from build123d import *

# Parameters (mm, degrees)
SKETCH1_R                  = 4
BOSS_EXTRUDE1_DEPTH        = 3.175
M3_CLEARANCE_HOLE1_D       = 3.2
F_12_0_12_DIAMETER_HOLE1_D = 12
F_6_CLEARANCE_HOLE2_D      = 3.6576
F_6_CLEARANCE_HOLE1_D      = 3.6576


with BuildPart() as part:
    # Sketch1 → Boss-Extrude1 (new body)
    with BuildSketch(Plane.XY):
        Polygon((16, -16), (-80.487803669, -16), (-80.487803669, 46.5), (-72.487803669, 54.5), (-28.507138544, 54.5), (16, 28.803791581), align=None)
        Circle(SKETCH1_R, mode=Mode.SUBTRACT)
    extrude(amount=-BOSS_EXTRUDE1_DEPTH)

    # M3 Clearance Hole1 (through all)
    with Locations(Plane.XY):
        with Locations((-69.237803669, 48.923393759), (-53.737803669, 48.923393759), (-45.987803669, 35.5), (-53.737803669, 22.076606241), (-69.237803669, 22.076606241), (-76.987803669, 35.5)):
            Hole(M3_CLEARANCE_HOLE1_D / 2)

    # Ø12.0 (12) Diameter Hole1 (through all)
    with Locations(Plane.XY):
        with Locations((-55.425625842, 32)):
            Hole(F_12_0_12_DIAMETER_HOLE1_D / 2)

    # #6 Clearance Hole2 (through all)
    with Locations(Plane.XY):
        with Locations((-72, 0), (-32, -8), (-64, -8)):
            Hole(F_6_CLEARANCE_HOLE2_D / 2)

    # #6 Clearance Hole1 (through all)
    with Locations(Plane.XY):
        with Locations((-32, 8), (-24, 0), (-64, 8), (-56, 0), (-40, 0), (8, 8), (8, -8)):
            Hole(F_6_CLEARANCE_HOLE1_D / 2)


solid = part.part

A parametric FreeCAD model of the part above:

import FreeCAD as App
import Part
import Sketcher
from FreeCAD import Vector
Q = App.Units.Quantity

doc = App.newDocument("Part")
body = doc.addObject("PartDesign::Body", "Body")

# Sketch on XY plane
sketch1 = body.newObject("Sketcher::SketchObject", "Sketch")
sketch1.AttachmentSupport = (doc.getObject("XY_Plane"), [""])
sketch1.MapMode = "FlatFace"
sketch1.addGeometry(Part.LineSegment(Vector(-80.5, -16, 0), Vector(16, -16, 0)), False)
sketch1.addGeometry(Part.LineSegment(Vector(16, -16, 0), Vector(16, 28.8, 0)), False)
sketch1.addGeometry(Part.LineSegment(Vector(16, 28.8, 0), Vector(-28.5, 54.5, 0)), False)
sketch1.addGeometry(Part.LineSegment(Vector(-28.5, 54.5, 0), Vector(-72.5, 54.5, 0)), False)
sketch1.addGeometry(Part.LineSegment(Vector(-72.5, 54.5, 0), Vector(-80.5, 46.5, 0)), False)
sketch1.addGeometry(Part.LineSegment(Vector(-80.5, 46.5, 0), Vector(-80.5, -16, 0)), False)
sketch1.addGeometry(Part.Circle(Vector(0, 0, 0), Vector(0, 0, 1), 4), False)
sketch1.addConstraint(Sketcher.Constraint("Coincident", 0, 2, 1, 1))
sketch1.addConstraint(Sketcher.Constraint("Coincident", 1, 2, 2, 1))
sketch1.addConstraint(Sketcher.Constraint("Coincident", 2, 2, 3, 1))
sketch1.addConstraint(Sketcher.Constraint("Coincident", 3, 2, 4, 1))
sketch1.addConstraint(Sketcher.Constraint("Coincident", 4, 2, 5, 1))
sketch1.addConstraint(Sketcher.Constraint("Coincident", 5, 2, 0, 1))
sketch1.addConstraint(Sketcher.Constraint("Horizontal", 0))
sketch1.addConstraint(Sketcher.Constraint("Vertical", 1))
sketch1.addConstraint(Sketcher.Constraint("Horizontal", 3))
sketch1.addConstraint(Sketcher.Constraint("Vertical", 5))
sketch1.addConstraint(Sketcher.Constraint("Coincident", 6, 3, -1, 1))
sketch1.addConstraint(Sketcher.Constraint("Diameter", 6, Q("8 mm")))
sketch1.addConstraint(Sketcher.Constraint("Angle", 2, Q("150 deg")))
sketch1.addConstraint(Sketcher.Constraint("Angle", 4, Q("-135 deg")))
sketch1.addConstraint(Sketcher.Constraint("DistanceY", 5, 2, 5, 1, Q("62.5 mm")))
sketch1.addConstraint(Sketcher.Constraint("DistanceX", -1, 1, 0, 2, Q("16 mm")))
sketch1.addConstraint(Sketcher.Constraint("DistanceY", 0, 2, -1, 1, Q("16 mm")))
sketch1.addConstraint(Sketcher.Constraint("DistanceX", 4, 2, 3, 2, Q("8 mm")))
sketch1.addConstraint(Sketcher.Constraint("DistanceY", 1, 1, 1, 2, Q("44.803792 mm")))
sketch1.addConstraint(Sketcher.Constraint("DistanceX", 0, 1, 0, 2, Q("96.487804 mm")))
pad1 = body.newObject("PartDesign::Pad", "Pad")
pad1.Profile = sketch1
pad1.Length = 3.175
pad1.Reversed = True

# Sketch on XY plane
sketch2 = body.newObject("Sketcher::SketchObject", "Sketch001")
sketch2.AttachmentSupport = (doc.getObject("XY_Plane"), [""])
sketch2.MapMode = "FlatFace"
sketch2.addGeometry(Part.Circle(Vector(-69.2, 48.9, 0), Vector(0, 0, 1), 1.6), False)
sketch2.addGeometry(Part.Circle(Vector(-53.7, 48.9, 0), Vector(0, 0, 1), 1.6), False)
sketch2.addGeometry(Part.Circle(Vector(-46, 35.5, 0), Vector(0, 0, 1), 1.6), False)
sketch2.addGeometry(Part.Circle(Vector(-53.7, 22.1, 0), Vector(0, 0, 1), 1.6), False)
sketch2.addGeometry(Part.Circle(Vector(-69.2, 22.1, 0), Vector(0, 0, 1), 1.6), False)
sketch2.addGeometry(Part.Circle(Vector(-77, 35.5, 0), Vector(0, 0, 1), 1.6), False)
sketch2.addConstraint(Sketcher.Constraint("Equal", 0, 1))
sketch2.addConstraint(Sketcher.Constraint("Equal", 1, 2))
sketch2.addConstraint(Sketcher.Constraint("Equal", 2, 3))
sketch2.addConstraint(Sketcher.Constraint("Equal", 3, 4))
sketch2.addConstraint(Sketcher.Constraint("Equal", 4, 5))
sketch2.addConstraint(Sketcher.Constraint("Horizontal", 0, 3, 1, 3))
sketch2.addConstraint(Sketcher.Constraint("Horizontal", 3, 3, 4, 3))
sketch2.addConstraint(Sketcher.Constraint("Horizontal", 2, 3, 5, 3))
sketch2.addConstraint(Sketcher.Constraint("Vertical", 1, 3, 3, 3))
sketch2.addConstraint(Sketcher.Constraint("Vertical", 0, 3, 4, 3))
sketch2.addConstraint(Sketcher.Constraint("Diameter", 0, Q("3.2 mm")))
sketch2.addConstraint(Sketcher.Constraint("DistanceX", 5, 3, 2, 3, Q("31 mm")))
sketch2.addConstraint(Sketcher.Constraint("DistanceY", -1, 1, 2, 3, Q("35.5 mm")))
sketch2.addConstraint(Sketcher.Constraint("DistanceX", 0, 3, 1, 3, Q("15.5 mm")))
sketch2.addConstraint(Sketcher.Constraint("DistanceX", 1, 3, 2, 3, Q("7.75 mm")))
sketch2.addConstraint(Sketcher.Constraint("DistanceX", 0, 3, -1, 1, Q("69.237804 mm")))
sketch2.addConstraint(Sketcher.Constraint("DistanceY", -1, 1, 0, 3, Q("48.923394 mm")))
sketch2.addConstraint(Sketcher.Constraint("DistanceY", -1, 1, 3, 3, Q("22.076606 mm")))
doc.recompute()
hole = body.newObject("PartDesign::Hole", "Hole")
hole.Profile = sketch2
hole.ThreadType = "None"
hole.Diameter = 3.2
hole.DepthType = "ThroughAll"

# Sketch on XY plane
sketch3 = body.newObject("Sketcher::SketchObject", "Sketch002")
sketch3.AttachmentSupport = (doc.getObject("XY_Plane"), [""])
sketch3.MapMode = "FlatFace"
sketch3.addGeometry(Part.Circle(Vector(-55, 32, 0), Vector(0, 0, 1), 6), False)
sketch3.addConstraint(Sketcher.Constraint("Diameter", 0, Q("12 mm")))
sketch3.addConstraint(Sketcher.Constraint("DistanceY", -1, 1, 0, 3, Q("32 mm")))
sketch3.addConstraint(Sketcher.Constraint("DistanceX", 0, 3, -1, 1, Q("55.425626 mm")))
doc.recompute()
hole2 = body.newObject("PartDesign::Hole", "Hole001")
hole2.Profile = sketch3
hole2.ThreadType = "None"
hole2.Diameter = 12
hole2.DepthType = "ThroughAll"

# Sketch on XY plane
sketch4 = body.newObject("Sketcher::SketchObject", "Sketch003")
sketch4.AttachmentSupport = (doc.getObject("XY_Plane"), [""])
sketch4.MapMode = "FlatFace"
sketch4.addGeometry(Part.Circle(Vector(-72, 0, 0), Vector(0, 0, 1), 1.8), False)
sketch4.addGeometry(Part.Circle(Vector(-32, -8, 0), Vector(0, 0, 1), 1.8), False)
sketch4.addGeometry(Part.Circle(Vector(-64, -8, 0), Vector(0, 0, 1), 1.8), False)
sketch4.addConstraint(Sketcher.Constraint("Equal", 0, 1))
sketch4.addConstraint(Sketcher.Constraint("Equal", 1, 2))
sketch4.addConstraint(Sketcher.Constraint("PointOnObject", 0, 3, -1))
sketch4.addConstraint(Sketcher.Constraint("Horizontal", 1, 3, 2, 3))
sketch4.addConstraint(Sketcher.Constraint("DistanceX", 0, 3, -1, 1, Q("72 mm")))
sketch4.addConstraint(Sketcher.Constraint("DistanceX", 1, 3, -1, 1, Q("32 mm")))
sketch4.addConstraint(Sketcher.Constraint("DistanceY", 1, 3, -1, 1, Q("8 mm")))
sketch4.addConstraint(Sketcher.Constraint("DistanceX", 2, 3, -1, 1, Q("64 mm")))
sketch4.addConstraint(Sketcher.Constraint("Diameter", 0, Q("3.6576 mm")))
doc.recompute()
hole3 = body.newObject("PartDesign::Hole", "Hole002")
hole3.Profile = sketch4
hole3.ThreadType = "None"
hole3.Diameter = 3.6576
hole3.DepthType = "ThroughAll"

# Sketch on XY plane
sketch5 = body.newObject("Sketcher::SketchObject", "Sketch004")
sketch5.AttachmentSupport = (doc.getObject("XY_Plane"), [""])
sketch5.MapMode = "FlatFace"
sketch5.addGeometry(Part.Circle(Vector(-32, 8, 0), Vector(0, 0, 1), 1.8), False)
sketch5.addGeometry(Part.Circle(Vector(-24, 0, 0), Vector(0, 0, 1), 1.8), False)
sketch5.addGeometry(Part.Circle(Vector(-64, 8, 0), Vector(0, 0, 1), 1.8), False)
sketch5.addGeometry(Part.Circle(Vector(-56, 0, 0), Vector(0, 0, 1), 1.8), False)
sketch5.addGeometry(Part.Circle(Vector(-40, 0, 0), Vector(0, 0, 1), 1.8), False)
sketch5.addGeometry(Part.Circle(Vector(8, 8, 0), Vector(0, 0, 1), 1.8), False)
sketch5.addGeometry(Part.Circle(Vector(8, -8, 0), Vector(0, 0, 1), 1.8), False)
sketch5.addConstraint(Sketcher.Constraint("Equal", 0, 1))
sketch5.addConstraint(Sketcher.Constraint("Equal", 1, 2))
sketch5.addConstraint(Sketcher.Constraint("Equal", 2, 3))
sketch5.addConstraint(Sketcher.Constraint("Equal", 3, 4))
sketch5.addConstraint(Sketcher.Constraint("Equal", 4, 5))
sketch5.addConstraint(Sketcher.Constraint("Equal", 5, 6))
sketch5.addConstraint(Sketcher.Constraint("Symmetric", 5, 3, 6, 3, -1))
sketch5.addConstraint(Sketcher.Constraint("PointOnObject", 1, 3, -1))
sketch5.addConstraint(Sketcher.Constraint("PointOnObject", 3, 3, -1))
sketch5.addConstraint(Sketcher.Constraint("PointOnObject", 4, 3, -1))
sketch5.addConstraint(Sketcher.Constraint("Horizontal", 0, 3, 2, 3))
sketch5.addConstraint(Sketcher.Constraint("Horizontal", 2, 3, 5, 3))
sketch5.addConstraint(Sketcher.Constraint("DistanceX", 0, 3, -1, 1, Q("32 mm")))
sketch5.addConstraint(Sketcher.Constraint("DistanceY", -1, 1, 0, 3, Q("8 mm")))
sketch5.addConstraint(Sketcher.Constraint("DistanceX", 1, 3, -1, 1, Q("24 mm")))
sketch5.addConstraint(Sketcher.Constraint("DistanceX", 2, 3, -1, 1, Q("64 mm")))
sketch5.addConstraint(Sketcher.Constraint("DistanceX", 3, 3, -1, 1, Q("56 mm")))
sketch5.addConstraint(Sketcher.Constraint("DistanceX", 4, 3, -1, 1, Q("40 mm")))
sketch5.addConstraint(Sketcher.Constraint("DistanceX", -1, 1, 5, 3, Q("8 mm")))
sketch5.addConstraint(Sketcher.Constraint("Diameter", 0, Q("3.6576 mm")))
doc.recompute()
hole4 = body.newObject("PartDesign::Hole", "Hole003")
hole4.Profile = sketch5
hole4.ThreadType = "None"
hole4.Diameter = 3.6576
hole4.DepthType = "ThroughAll"

doc.recompute()
